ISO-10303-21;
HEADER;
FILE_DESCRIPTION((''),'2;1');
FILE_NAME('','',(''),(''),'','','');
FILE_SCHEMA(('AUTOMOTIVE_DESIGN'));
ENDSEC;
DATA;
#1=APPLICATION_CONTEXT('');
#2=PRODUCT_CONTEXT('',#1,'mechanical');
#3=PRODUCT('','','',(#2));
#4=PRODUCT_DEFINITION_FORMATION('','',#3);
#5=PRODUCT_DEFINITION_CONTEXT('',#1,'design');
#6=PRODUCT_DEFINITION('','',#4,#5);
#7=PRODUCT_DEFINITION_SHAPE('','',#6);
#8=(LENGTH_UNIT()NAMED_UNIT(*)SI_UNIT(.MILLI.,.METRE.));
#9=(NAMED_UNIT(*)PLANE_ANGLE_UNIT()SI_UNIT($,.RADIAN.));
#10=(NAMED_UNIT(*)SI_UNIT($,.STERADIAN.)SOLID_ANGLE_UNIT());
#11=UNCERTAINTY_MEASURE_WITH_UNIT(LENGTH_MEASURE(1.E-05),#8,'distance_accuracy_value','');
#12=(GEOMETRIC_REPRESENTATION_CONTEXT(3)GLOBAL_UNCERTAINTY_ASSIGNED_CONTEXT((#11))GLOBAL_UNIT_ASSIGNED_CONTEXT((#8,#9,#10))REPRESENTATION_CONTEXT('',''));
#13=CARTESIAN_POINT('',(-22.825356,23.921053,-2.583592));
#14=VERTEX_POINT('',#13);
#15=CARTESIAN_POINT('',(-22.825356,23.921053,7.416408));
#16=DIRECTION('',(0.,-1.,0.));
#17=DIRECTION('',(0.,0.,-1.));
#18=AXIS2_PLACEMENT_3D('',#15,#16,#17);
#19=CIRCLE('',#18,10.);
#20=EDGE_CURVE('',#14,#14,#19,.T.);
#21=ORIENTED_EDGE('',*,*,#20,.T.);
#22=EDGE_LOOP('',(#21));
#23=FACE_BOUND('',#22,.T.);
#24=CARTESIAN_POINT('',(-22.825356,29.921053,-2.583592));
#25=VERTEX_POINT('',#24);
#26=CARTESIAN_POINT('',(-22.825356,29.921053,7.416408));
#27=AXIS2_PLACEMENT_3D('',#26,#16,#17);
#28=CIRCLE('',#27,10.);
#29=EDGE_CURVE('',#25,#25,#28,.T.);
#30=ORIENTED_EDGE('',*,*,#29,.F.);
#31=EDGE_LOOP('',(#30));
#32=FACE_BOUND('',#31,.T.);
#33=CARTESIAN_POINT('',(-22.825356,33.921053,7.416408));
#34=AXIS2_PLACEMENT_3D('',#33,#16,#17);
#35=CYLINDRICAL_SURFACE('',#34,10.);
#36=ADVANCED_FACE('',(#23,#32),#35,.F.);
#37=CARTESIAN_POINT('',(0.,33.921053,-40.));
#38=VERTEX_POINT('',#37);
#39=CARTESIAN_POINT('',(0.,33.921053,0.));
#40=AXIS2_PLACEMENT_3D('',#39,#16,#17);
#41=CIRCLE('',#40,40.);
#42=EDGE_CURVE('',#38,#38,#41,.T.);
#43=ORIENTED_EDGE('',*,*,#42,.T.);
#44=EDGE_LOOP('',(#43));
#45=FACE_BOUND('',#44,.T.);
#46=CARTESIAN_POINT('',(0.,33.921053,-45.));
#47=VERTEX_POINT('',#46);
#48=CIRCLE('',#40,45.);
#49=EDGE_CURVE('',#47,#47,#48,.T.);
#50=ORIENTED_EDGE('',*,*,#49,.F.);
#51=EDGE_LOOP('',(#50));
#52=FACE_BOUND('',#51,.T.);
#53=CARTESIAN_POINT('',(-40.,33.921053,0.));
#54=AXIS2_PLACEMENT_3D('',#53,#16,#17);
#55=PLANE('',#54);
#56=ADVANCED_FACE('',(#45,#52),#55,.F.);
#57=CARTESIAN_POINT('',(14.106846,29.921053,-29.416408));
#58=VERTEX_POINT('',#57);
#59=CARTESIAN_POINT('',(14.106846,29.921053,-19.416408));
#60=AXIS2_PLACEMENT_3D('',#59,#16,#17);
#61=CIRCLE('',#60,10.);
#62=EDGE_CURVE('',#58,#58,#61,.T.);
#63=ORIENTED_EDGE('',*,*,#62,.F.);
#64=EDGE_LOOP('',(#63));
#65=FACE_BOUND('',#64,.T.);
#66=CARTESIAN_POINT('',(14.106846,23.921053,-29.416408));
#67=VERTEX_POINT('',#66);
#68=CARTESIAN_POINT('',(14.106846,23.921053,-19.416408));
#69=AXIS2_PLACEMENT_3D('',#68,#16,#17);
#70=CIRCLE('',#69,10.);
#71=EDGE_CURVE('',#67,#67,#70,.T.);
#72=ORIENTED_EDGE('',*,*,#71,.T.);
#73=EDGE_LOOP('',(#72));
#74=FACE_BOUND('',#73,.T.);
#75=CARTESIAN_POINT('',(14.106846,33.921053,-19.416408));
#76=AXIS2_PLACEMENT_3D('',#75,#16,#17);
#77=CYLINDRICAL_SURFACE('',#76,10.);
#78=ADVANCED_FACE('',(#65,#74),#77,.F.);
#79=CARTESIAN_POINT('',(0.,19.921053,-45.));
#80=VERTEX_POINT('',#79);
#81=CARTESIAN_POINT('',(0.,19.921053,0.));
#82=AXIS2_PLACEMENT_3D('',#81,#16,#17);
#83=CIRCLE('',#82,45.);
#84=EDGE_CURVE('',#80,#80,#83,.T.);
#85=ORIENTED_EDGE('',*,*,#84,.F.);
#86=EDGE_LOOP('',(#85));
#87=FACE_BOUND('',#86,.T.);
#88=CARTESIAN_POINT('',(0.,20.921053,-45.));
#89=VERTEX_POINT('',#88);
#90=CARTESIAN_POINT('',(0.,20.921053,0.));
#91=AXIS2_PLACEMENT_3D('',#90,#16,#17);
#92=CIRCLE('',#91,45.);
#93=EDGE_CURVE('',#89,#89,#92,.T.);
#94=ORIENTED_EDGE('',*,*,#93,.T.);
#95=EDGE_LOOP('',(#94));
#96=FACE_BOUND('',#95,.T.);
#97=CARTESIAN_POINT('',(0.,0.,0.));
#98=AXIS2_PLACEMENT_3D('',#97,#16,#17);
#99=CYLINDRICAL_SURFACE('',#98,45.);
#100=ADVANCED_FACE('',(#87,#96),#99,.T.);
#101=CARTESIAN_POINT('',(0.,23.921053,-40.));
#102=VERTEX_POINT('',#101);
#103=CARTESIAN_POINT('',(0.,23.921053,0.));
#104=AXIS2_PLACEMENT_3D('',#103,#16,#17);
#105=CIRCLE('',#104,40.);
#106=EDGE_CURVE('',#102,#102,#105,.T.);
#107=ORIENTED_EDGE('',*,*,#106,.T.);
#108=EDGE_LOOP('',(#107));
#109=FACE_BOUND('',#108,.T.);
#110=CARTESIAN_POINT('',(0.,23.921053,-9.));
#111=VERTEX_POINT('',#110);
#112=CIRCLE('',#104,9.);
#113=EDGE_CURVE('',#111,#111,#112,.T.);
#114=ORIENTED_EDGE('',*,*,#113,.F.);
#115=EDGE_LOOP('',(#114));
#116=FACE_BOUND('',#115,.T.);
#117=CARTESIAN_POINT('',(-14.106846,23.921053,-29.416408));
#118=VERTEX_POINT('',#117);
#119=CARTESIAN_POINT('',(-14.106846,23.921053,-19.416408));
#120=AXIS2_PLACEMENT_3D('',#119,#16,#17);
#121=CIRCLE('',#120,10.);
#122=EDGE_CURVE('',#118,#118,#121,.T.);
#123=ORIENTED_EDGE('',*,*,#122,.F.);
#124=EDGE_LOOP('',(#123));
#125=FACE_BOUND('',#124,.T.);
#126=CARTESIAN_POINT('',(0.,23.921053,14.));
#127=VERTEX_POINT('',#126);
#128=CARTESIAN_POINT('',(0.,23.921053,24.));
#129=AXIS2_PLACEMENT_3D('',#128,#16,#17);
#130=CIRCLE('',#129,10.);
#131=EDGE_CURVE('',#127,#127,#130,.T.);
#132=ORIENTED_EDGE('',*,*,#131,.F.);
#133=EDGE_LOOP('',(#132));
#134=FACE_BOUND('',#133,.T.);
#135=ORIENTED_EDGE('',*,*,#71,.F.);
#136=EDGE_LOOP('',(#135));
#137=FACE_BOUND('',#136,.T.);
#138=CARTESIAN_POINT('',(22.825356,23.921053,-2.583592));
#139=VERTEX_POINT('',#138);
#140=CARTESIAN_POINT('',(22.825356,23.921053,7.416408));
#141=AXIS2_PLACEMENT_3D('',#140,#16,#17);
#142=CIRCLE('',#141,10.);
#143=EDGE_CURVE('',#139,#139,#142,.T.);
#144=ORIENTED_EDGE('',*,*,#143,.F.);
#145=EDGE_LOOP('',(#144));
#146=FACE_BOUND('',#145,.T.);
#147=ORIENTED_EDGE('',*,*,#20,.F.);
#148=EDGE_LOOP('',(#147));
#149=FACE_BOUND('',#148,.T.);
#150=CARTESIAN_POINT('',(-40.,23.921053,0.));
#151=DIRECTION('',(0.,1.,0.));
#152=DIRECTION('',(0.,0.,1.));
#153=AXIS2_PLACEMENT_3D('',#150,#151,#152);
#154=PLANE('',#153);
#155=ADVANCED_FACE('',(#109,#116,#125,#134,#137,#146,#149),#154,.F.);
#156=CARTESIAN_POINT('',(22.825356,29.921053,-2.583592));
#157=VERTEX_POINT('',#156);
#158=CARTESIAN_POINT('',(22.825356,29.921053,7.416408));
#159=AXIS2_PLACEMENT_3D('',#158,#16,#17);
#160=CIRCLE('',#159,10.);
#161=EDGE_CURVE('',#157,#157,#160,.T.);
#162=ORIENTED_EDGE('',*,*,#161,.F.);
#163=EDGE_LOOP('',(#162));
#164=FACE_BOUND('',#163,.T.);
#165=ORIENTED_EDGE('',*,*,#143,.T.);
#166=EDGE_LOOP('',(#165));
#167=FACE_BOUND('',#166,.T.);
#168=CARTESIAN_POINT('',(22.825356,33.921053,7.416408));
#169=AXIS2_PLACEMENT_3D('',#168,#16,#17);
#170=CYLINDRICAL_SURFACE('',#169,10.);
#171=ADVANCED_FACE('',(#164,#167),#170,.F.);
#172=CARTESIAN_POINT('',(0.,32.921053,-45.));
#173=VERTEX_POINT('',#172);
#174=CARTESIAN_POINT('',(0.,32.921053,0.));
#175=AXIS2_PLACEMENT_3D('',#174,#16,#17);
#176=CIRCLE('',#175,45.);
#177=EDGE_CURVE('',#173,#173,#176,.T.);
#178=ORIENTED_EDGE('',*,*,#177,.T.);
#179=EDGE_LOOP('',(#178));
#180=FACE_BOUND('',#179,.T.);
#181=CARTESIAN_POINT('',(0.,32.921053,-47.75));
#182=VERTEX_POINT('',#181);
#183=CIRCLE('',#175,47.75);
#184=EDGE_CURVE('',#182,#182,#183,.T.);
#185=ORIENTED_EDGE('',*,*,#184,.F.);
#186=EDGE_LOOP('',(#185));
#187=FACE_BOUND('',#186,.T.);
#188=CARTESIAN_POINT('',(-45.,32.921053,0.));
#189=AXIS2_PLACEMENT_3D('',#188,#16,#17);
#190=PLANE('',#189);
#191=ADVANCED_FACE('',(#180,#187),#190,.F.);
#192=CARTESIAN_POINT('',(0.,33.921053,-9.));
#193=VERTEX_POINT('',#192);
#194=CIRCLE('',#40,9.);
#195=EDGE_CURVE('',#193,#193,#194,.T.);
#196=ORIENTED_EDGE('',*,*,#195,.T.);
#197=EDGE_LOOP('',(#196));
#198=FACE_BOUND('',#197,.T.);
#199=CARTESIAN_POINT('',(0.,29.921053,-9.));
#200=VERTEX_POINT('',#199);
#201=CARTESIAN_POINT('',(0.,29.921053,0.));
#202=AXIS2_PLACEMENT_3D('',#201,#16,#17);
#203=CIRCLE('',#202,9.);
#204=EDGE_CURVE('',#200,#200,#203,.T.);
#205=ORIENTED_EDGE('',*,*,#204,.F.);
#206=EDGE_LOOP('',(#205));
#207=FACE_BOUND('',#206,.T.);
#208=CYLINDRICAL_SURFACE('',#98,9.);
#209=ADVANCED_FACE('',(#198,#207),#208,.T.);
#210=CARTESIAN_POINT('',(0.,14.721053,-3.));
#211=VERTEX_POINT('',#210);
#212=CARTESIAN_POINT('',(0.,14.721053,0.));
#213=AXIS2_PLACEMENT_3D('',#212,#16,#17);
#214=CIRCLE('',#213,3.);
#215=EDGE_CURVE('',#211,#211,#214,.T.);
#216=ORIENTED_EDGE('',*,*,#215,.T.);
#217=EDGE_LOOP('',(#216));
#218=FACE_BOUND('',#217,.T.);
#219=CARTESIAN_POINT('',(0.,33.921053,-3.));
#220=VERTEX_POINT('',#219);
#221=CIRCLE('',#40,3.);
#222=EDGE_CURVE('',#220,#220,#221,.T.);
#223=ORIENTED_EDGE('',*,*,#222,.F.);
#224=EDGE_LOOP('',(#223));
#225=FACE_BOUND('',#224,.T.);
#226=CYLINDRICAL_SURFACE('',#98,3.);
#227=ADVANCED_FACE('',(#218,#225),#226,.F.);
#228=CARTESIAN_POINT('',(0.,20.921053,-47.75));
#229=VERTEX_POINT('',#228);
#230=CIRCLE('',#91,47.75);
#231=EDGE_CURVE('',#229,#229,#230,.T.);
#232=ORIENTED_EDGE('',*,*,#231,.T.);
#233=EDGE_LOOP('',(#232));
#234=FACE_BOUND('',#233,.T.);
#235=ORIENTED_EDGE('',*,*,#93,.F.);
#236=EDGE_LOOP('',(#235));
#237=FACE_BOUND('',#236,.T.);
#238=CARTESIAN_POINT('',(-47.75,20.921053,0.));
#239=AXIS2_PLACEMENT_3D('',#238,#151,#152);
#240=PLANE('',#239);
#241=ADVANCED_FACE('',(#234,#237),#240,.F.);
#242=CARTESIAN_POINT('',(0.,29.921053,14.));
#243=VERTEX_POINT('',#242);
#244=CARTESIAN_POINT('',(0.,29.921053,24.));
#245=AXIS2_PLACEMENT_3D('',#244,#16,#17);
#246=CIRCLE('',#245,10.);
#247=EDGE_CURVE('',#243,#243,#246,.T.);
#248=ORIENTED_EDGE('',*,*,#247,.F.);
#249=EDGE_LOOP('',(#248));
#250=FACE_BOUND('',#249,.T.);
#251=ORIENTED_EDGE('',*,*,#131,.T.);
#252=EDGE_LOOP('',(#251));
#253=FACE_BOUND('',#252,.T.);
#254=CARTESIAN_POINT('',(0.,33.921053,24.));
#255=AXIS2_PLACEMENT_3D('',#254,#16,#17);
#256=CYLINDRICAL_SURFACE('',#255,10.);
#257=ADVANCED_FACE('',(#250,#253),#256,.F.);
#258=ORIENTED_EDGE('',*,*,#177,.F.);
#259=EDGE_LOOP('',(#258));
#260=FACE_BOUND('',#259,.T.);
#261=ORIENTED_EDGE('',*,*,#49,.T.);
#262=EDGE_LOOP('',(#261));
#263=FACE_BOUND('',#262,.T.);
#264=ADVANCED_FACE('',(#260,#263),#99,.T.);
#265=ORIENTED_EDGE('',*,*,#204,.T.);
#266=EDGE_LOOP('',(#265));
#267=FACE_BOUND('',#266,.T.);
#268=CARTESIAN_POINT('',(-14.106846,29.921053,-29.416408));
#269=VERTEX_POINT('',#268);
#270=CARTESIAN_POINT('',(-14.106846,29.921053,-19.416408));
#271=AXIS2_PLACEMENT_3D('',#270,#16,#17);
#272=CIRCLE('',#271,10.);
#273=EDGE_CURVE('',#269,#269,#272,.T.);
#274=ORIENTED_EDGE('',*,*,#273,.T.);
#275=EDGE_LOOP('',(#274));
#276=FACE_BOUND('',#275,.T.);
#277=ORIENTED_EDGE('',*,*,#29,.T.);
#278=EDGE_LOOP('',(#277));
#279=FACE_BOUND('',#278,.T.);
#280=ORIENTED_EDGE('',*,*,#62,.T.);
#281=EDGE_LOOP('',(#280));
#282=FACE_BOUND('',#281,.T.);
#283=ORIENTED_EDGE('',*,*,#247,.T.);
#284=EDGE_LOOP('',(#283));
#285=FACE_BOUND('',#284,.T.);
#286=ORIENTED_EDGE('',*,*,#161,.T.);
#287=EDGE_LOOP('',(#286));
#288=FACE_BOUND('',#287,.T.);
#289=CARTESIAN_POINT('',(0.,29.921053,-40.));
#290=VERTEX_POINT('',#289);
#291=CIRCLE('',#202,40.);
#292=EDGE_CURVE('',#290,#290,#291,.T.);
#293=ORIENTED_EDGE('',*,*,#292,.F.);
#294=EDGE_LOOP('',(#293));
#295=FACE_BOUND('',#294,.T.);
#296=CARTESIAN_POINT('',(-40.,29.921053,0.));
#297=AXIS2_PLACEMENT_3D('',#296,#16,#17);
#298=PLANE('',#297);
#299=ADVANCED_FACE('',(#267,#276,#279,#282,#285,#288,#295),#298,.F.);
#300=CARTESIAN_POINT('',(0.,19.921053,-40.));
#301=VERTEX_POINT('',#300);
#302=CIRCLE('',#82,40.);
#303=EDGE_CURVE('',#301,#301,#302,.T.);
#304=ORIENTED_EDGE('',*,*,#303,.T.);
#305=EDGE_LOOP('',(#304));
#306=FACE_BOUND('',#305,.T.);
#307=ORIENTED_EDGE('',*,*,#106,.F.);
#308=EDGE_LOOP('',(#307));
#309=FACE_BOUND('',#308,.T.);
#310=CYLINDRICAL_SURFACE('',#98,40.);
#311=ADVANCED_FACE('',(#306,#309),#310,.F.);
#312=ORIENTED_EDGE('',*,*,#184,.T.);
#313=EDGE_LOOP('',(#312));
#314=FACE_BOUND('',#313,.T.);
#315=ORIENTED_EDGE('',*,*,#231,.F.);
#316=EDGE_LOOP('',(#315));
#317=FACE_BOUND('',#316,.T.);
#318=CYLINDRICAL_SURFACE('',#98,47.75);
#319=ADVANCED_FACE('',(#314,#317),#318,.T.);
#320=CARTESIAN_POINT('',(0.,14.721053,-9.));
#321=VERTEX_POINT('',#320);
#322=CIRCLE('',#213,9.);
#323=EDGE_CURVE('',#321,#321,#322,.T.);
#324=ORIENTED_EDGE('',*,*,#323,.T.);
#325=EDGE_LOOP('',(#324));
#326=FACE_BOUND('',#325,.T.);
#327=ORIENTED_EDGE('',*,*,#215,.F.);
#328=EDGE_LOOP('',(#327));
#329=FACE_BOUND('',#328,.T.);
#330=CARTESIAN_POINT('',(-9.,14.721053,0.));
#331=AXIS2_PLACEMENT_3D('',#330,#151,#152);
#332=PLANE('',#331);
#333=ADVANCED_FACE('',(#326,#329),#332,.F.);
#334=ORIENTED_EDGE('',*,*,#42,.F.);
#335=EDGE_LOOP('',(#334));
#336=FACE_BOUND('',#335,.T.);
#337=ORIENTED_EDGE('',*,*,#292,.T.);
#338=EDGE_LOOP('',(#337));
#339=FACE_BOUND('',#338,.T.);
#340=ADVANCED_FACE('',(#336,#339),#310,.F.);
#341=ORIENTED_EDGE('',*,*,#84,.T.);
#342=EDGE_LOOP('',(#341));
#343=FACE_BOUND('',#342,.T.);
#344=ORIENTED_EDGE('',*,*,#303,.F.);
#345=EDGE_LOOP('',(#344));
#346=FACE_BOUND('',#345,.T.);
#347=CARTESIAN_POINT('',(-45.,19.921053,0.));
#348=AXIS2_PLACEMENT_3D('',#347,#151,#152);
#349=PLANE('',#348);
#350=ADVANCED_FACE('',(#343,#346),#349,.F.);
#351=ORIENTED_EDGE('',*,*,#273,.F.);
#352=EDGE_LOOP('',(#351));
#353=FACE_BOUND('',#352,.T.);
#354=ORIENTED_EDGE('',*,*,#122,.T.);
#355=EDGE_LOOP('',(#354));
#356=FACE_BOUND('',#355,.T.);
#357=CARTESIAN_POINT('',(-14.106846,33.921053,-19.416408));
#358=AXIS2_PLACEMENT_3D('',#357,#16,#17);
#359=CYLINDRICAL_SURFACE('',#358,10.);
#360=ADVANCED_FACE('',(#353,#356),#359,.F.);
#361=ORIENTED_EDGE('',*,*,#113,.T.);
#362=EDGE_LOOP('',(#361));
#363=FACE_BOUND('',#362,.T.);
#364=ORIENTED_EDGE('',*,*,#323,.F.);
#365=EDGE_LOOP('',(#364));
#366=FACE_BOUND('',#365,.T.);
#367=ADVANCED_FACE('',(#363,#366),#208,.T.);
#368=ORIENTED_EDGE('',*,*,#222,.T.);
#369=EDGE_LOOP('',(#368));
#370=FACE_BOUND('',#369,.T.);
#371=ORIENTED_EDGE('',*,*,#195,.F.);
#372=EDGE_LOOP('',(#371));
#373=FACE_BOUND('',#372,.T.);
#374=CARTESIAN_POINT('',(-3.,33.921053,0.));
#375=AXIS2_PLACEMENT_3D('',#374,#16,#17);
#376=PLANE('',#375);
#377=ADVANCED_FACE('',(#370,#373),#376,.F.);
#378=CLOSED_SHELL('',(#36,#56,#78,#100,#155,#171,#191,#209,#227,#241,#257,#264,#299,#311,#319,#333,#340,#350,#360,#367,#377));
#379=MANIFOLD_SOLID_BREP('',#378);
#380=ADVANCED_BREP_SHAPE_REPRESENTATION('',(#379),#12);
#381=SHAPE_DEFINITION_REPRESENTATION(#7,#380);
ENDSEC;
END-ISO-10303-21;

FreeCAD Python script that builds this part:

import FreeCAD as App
import Part
import Sketcher
from FreeCAD import Vector

doc = App.newDocument("Part")
body = doc.addObject("PartDesign::Body", "Body")

sketch1 = body.newObject("Sketcher::SketchObject", "Sketch")
sketch1.AttachmentSupport = (doc.getObject("XY_Plane"), [""])
sketch1.MapMode = "FlatFace"
sketch1.addGeometry([
    Part.LineSegment(Vector(-3, 33.9, 0), Vector(-9, 33.9, 0)),
    Part.LineSegment(Vector(-9, 33.9, 0), Vector(-9, 29.9, 0)),
    Part.LineSegment(Vector(-9, 29.9, 0), Vector(-40, 29.9, 0)),
    Part.LineSegment(Vector(-40, 29.9, 0), Vector(-40, 33.9, 0)),
    Part.LineSegment(Vector(-40, 33.9, 0), Vector(-45, 33.9, 0)),
    Part.LineSegment(Vector(-45, 33.9, 0), Vector(-45, 32.9, 0)),
    Part.LineSegment(Vector(-45, 32.9, 0), Vector(-47.8, 32.9, 0)),
    Part.LineSegment(Vector(-47.8, 32.9, 0), Vector(-47.8, 20.9, 0)),
    Part.LineSegment(Vector(-47.8, 20.9, 0), Vector(-45, 20.9, 0)),
    Part.LineSegment(Vector(-45, 20.9, 0), Vector(-45, 19.9, 0)),
    Part.LineSegment(Vector(-45, 19.9, 0), Vector(-40, 19.9, 0)),
    Part.LineSegment(Vector(-40, 19.9, 0), Vector(-40, 23.9, 0)),
    Part.LineSegment(Vector(-40, 23.9, 0), Vector(-9, 23.9, 0)),
    Part.LineSegment(Vector(-9, 23.9, 0), Vector(-9, 14.7, 0)),
    Part.LineSegment(Vector(-9, 14.7, 0), Vector(-3, 14.7, 0)),
    Part.LineSegment(Vector(-3, 14.7, 0), Vector(-3, 33.9, 0)),
], False)
sketch1.addConstraint([
    Sketcher.Constraint("Coincident", 0, 2, 1, 1),
    Sketcher.Constraint("Coincident", 1, 2, 2, 1),
    Sketcher.Constraint("Coincident", 2, 2, 3, 1),
    Sketcher.Constraint("Coincident", 3, 2, 4, 1),
    Sketcher.Constraint("Coincident", 4, 2, 5, 1),
    Sketcher.Constraint("Coincident", 5, 2, 6, 1),
    Sketcher.Constraint("Coincident", 6, 2, 7, 1),
    Sketcher.Constraint("Coincident", 7, 2, 8, 1),
    Sketcher.Constraint("Coincident", 8, 2, 9, 1),
    Sketcher.Constraint("Coincident", 9, 2, 10, 1),
    Sketcher.Constraint("Coincident", 10, 2, 11, 1),
    Sketcher.Constraint("Coincident", 11, 2, 12, 1),
    Sketcher.Constraint("Coincident", 12, 2, 13, 1),
    Sketcher.Constraint("Coincident", 13, 2, 14, 1),
    Sketcher.Constraint("Coincident", 14, 2, 15, 1),
    Sketcher.Constraint("Coincident", 15, 2, 0, 1),
    Sketcher.Constraint("Horizontal", 0),
    Sketcher.Constraint("Vertical", 1),
    Sketcher.Constraint("Horizontal", 2),
    Sketcher.Constraint("Vertical", 3),
    Sketcher.Constraint("Horizontal", 4),
    Sketcher.Constraint("Vertical", 5),
    Sketcher.Constraint("Horizontal", 6),
    Sketcher.Constraint("Vertical", 7),
    Sketcher.Constraint("Horizontal", 8),
    Sketcher.Constraint("Vertical", 9),
    Sketcher.Constraint("Horizontal", 10),
    Sketcher.Constraint("Vertical", 11),
    Sketcher.Constraint("Horizontal", 12),
    Sketcher.Constraint("Vertical", 13),
    Sketcher.Constraint("Horizontal", 14),
    Sketcher.Constraint("Vertical", 15),
    Sketcher.Constraint("Horizontal", 0, 2, 3, 2),
    Sketcher.Constraint("Vertical", 5, 2, 8, 2),
    Sketcher.Constraint("Vertical", 3, 2, 10, 2),
    Sketcher.Constraint("Vertical", 1, 2, 12, 2),
    Sketcher.Constraint("Equal", 5, 9),
    Sketcher.Constraint("Equal", 3, 11),
    Sketcher.Constraint("DistanceX", 0, 2, 0, 1, 6.0),
    Sketcher.Constraint("DistanceX", 2, 2, 2, 1, 31.0),
    Sketcher.Constraint("DistanceX", 4, 2, 4, 1, 5.0),
    Sketcher.Constraint("DistanceY", 1, 2, 1, 1, 4.0),
    Sketcher.Constraint("DistanceY", 5, 2, 5, 1, 1.0),
    Sketcher.Constraint("DistanceY", 7, 2, 7, 1, 12.0),
    Sketcher.Constraint("DistanceY", 13, 2, 13, 1, 9.2),
    Sketcher.Constraint("DistanceX", 0, 2, -1, 1, 9.0),
    Sketcher.Constraint("DistanceX", 6, 2, 6, 1, 2.75),
    Sketcher.Constraint("DistanceY", -1, 1, 0, 2, 33.921053),
])
revolution = body.newObject("PartDesign::Revolution", "Revolution")
revolution.Profile = sketch1
revolution.ReferenceAxis = (sketch1, ["V_Axis"])
revolution.Angle = 360

sketch2 = body.newObject("Sketcher::SketchObject", "Sketch001")
sketch2.AttachmentSupport = (doc.getObject("XZ_Plane"), [""])
sketch2.MapMode = "FlatFace"
sketch2.AttachmentOffset = App.Placement(Vector(0, 0, -23.921053), App.Rotation())
sketch2.addGeometry([
    Part.Circle(Vector(0, 24, 0), Vector(0, 0, 1), 10),
    Part.Circle(Vector(23, 7, 0), Vector(0, 0, 1), 10),
    Part.Circle(Vector(14, -19, 0), Vector(0, 0, 1), 10),
    Part.Circle(Vector(-14, -19, 0), Vector(0, 0, 1), 10),
    Part.Circle(Vector(-23, 7, 0), Vector(0, 0, 1), 10),
], False)
sketch2.addConstraint([
    Sketcher.Constraint("Equal", 0, 1),
    Sketcher.Constraint("Equal", 1, 2),
    Sketcher.Constraint("Equal", 2, 3),
    Sketcher.Constraint("Equal", 3, 4),
    Sketcher.Constraint("Symmetric", 2, 3, 3, 3, -2),
    Sketcher.Constraint("Symmetric", 1, 3, 4, 3, -2),
    Sketcher.Constraint("PointOnObject", 0, 3, -2),
    Sketcher.Constraint("Diameter", 0, 20.0),
    Sketcher.Constraint("DistanceY", -1, 1, 0, 3, 24.0),
    Sketcher.Constraint("DistanceX", 2, 3, 1, 3, 8.71851),
    Sketcher.Constraint("DistanceX", -1, 1, 1, 3, 22.825356),
    Sketcher.Constraint("DistanceY", -1, 1, 1, 3, 7.416408),
    Sketcher.Constraint("DistanceY", 2, 3, -1, 1, 19.416408),
])
pocket1 = body.newObject("PartDesign::Pocket", "Pocket")
pocket1.Profile = sketch2
pocket1.Length = 10

doc.recompute()
